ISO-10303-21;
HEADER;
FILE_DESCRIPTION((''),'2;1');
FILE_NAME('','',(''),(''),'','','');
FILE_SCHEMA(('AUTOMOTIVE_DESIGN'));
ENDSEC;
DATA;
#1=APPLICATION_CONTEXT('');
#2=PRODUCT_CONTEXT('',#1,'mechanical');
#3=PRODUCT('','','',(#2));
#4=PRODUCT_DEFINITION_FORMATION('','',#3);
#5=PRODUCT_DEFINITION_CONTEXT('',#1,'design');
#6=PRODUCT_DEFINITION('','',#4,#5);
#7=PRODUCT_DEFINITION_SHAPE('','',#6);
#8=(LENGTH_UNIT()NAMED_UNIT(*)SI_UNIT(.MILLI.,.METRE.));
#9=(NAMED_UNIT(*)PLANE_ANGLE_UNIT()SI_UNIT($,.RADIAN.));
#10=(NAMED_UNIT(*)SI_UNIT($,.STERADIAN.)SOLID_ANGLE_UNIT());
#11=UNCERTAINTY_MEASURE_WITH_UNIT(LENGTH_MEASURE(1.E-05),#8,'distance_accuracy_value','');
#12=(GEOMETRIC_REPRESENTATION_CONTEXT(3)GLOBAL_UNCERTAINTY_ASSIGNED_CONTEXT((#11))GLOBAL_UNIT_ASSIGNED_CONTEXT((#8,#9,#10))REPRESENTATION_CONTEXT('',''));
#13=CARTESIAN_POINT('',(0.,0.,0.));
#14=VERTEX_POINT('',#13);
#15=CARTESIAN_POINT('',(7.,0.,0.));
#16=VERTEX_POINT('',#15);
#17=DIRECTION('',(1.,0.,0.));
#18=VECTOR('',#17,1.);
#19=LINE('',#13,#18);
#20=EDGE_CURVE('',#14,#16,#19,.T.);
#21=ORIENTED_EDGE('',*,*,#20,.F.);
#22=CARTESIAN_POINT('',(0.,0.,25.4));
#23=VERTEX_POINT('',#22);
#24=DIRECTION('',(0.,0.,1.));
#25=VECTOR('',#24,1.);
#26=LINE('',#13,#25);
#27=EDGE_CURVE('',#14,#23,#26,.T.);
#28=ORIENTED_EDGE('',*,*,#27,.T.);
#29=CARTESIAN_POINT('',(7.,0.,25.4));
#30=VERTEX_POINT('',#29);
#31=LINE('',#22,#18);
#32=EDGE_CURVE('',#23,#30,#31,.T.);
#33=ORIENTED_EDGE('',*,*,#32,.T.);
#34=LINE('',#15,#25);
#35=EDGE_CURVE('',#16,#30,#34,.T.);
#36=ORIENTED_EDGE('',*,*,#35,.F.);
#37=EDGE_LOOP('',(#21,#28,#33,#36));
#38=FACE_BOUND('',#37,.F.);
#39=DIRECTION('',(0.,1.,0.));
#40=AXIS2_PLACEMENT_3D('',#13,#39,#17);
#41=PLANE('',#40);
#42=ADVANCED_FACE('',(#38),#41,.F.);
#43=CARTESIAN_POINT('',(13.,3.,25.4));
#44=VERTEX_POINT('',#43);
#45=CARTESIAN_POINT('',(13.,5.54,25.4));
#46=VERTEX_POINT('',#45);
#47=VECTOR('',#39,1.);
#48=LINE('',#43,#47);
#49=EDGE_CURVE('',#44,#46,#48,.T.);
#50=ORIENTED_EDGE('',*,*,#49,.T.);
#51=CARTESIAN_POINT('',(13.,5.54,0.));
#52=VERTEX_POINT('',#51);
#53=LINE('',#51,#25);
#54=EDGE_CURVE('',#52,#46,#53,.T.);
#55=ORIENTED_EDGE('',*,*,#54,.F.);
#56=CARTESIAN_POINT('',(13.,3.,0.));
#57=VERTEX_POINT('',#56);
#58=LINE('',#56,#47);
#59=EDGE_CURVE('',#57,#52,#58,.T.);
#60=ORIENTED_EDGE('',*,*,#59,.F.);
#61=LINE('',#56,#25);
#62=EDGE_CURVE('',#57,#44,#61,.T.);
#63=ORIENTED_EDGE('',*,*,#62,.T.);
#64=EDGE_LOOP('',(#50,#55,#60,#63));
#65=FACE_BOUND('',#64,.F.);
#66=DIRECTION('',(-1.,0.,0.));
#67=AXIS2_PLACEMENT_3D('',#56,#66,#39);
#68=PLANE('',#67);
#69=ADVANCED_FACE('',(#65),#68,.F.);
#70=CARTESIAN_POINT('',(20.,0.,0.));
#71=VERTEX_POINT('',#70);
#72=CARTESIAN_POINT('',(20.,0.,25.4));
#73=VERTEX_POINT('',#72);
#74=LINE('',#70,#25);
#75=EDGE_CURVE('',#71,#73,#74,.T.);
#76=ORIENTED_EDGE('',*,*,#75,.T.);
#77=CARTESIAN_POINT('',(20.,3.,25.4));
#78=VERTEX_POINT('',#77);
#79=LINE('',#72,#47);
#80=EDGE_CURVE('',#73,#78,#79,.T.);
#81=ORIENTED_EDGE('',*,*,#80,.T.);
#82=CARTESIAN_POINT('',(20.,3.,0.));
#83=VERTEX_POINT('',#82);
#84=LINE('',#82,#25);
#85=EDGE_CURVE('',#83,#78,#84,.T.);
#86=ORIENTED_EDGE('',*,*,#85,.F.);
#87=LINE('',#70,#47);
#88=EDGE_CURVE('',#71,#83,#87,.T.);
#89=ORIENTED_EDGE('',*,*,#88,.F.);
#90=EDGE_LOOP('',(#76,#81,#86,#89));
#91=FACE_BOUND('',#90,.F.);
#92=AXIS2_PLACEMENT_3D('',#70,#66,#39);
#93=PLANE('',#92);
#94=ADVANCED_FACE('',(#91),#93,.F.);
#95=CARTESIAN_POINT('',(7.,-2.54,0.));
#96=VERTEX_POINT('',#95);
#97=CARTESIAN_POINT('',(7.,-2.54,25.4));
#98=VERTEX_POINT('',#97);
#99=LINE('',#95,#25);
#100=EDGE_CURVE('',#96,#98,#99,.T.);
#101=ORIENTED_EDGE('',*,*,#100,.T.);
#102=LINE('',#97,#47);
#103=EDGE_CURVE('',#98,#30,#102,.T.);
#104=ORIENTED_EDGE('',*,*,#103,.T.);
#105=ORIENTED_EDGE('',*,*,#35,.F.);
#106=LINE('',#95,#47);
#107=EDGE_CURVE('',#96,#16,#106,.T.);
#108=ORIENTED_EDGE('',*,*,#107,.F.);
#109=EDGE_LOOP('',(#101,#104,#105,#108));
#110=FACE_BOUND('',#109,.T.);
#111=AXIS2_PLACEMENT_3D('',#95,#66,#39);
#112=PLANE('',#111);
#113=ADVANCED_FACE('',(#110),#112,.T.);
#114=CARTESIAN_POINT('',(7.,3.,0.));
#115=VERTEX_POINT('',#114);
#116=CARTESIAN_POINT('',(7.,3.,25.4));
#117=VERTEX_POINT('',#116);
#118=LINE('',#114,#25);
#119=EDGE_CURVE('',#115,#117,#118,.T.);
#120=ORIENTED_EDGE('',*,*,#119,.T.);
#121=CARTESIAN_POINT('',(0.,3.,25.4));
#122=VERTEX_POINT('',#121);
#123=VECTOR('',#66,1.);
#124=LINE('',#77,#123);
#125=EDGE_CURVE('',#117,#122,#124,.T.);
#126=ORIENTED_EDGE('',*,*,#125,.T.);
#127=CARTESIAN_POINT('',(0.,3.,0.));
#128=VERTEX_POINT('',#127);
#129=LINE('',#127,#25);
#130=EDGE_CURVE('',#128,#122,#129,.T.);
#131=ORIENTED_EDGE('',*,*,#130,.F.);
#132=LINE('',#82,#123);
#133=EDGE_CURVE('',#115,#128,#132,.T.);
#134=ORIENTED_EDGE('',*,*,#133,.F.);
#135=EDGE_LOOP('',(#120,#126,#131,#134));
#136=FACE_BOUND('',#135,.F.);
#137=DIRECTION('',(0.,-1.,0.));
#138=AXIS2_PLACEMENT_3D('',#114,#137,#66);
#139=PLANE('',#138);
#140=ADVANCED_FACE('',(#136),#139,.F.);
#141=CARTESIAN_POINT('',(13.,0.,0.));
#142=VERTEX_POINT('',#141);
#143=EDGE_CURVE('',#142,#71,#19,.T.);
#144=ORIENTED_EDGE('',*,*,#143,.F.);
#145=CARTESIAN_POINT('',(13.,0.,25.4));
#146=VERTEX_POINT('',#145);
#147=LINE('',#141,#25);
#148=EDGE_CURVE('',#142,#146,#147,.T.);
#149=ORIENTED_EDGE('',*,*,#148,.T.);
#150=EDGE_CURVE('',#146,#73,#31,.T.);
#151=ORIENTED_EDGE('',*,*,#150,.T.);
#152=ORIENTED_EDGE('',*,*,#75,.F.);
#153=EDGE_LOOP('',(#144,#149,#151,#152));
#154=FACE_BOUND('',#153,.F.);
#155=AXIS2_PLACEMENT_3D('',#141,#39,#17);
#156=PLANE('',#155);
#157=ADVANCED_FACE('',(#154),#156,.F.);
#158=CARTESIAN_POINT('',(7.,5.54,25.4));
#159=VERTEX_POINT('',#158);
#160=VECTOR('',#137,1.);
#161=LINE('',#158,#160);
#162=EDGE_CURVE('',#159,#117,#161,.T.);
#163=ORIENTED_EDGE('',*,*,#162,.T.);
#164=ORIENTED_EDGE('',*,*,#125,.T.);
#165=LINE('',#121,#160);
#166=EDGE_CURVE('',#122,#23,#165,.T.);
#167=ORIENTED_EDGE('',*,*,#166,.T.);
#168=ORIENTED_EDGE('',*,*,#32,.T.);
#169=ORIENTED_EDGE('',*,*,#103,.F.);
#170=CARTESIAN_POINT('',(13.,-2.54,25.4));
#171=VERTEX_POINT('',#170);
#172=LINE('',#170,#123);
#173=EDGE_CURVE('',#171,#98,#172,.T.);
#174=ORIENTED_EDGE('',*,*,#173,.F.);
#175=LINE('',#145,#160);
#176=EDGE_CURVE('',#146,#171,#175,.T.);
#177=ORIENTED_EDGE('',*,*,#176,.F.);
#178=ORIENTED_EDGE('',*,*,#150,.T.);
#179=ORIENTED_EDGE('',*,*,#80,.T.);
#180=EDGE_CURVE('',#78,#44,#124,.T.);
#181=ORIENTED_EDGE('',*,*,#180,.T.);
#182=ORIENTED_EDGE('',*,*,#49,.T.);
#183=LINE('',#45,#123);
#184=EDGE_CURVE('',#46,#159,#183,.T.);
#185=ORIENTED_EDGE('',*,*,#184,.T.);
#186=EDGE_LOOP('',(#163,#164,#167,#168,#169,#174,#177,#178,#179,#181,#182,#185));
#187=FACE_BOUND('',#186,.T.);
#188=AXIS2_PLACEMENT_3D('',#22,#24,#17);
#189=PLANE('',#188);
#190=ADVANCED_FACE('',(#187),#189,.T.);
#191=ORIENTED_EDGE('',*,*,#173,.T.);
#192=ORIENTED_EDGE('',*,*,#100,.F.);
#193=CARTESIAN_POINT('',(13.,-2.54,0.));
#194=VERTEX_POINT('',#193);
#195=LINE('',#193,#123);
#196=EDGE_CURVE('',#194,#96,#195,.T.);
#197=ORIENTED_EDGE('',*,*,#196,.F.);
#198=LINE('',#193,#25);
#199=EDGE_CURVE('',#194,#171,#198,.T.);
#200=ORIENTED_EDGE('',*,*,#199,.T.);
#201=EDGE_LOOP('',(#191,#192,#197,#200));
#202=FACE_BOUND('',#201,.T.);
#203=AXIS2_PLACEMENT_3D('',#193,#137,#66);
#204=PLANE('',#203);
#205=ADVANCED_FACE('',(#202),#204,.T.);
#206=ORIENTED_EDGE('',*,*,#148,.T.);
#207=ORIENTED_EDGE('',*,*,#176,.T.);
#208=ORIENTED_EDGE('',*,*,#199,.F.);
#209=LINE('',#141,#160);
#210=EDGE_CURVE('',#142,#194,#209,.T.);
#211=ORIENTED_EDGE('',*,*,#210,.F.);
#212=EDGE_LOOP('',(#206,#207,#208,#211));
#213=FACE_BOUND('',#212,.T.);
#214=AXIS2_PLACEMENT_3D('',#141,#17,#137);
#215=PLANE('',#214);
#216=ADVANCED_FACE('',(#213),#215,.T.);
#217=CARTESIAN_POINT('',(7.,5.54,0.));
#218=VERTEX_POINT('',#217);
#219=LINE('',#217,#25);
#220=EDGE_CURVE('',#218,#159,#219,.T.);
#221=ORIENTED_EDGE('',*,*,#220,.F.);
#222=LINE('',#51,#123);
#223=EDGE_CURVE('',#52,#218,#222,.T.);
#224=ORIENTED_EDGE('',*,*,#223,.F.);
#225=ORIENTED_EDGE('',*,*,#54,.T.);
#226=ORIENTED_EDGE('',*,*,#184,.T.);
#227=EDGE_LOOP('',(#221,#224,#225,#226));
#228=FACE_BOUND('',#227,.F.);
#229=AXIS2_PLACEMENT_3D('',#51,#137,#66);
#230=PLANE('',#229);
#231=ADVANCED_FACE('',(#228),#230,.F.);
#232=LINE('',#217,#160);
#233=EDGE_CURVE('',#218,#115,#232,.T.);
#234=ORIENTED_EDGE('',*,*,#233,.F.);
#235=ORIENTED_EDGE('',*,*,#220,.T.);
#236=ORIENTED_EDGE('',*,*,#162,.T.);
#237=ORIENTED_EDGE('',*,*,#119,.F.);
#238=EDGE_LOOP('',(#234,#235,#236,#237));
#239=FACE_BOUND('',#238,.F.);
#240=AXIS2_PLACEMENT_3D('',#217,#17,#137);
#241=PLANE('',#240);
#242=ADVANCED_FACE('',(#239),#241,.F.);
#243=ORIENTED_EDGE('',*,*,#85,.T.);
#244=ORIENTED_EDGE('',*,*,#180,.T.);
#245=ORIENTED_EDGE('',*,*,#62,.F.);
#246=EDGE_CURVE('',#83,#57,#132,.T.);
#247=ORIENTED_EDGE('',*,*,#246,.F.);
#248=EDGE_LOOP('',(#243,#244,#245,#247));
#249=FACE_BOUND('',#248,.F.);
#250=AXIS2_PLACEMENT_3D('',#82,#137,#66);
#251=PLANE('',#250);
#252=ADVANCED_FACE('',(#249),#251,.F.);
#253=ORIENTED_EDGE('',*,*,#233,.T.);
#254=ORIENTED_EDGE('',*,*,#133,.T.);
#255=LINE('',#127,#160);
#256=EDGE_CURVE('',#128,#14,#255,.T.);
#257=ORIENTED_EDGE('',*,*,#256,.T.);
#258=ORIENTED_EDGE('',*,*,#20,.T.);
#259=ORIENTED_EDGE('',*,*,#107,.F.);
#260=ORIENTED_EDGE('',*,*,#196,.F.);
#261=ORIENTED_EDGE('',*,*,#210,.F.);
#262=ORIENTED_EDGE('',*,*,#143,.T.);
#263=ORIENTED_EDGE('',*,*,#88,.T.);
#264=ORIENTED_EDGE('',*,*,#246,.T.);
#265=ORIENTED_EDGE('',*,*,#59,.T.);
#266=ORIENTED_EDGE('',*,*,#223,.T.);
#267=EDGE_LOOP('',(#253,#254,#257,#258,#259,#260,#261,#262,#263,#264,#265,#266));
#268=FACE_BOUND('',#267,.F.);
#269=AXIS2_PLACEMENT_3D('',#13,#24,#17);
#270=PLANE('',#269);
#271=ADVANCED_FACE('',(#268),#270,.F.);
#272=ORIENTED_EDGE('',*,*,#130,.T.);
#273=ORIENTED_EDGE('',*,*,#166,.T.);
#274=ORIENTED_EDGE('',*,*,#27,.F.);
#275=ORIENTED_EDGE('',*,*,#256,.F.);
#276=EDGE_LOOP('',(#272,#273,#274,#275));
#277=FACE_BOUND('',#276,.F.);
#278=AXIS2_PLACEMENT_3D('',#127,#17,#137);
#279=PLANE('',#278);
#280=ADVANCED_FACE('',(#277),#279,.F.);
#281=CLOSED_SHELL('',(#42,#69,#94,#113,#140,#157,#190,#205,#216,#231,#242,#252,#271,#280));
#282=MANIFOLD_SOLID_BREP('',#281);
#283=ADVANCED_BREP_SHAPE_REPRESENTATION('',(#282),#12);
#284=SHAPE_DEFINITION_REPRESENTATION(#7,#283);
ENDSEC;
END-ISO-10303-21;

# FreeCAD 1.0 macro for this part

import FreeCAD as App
import Part
import Sketcher

V = App.Vector
Q = App.Units.Quantity

doc = App.newDocument("Part")
params = doc.addObject("Spreadsheet::Sheet", "Params")
for row, (alias, value) in enumerate([
    ("sketch1_height", "0.1 in"),
    ("pad1_length", "1 in"),
], start=1):
    params.set(f"A{row}", alias)
    params.set(f"B{row}", "=" + value)
    params.setAlias(f"B{row}", alias)

body = doc.addObject("PartDesign::Body", "Body")

sketch1 = doc.addObject("Sketcher::SketchObject", "Sketch")
body.addObject(sketch1)
sketch1.AttachmentSupport = (doc.XY_Plane, [""])
sketch1.MapMode = "FlatFace"
sketch1.addGeometry([
    Part.LineSegment(V(0, 3, 0), V(0, 0, 0)),
    Part.LineSegment(V(0, 0, 0), V(7, 0, 0)),
    Part.LineSegment(V(7, 0, 0), V(7, -2.5, 0)),
    Part.LineSegment(V(7, -2.5, 0), V(13, -2.5, 0)),
    Part.LineSegment(V(13, -2.5, 0), V(13, 0, 0)),
    Part.LineSegment(V(13, 0, 0), V(20, 0, 0)),
    Part.LineSegment(V(20, 0, 0), V(20, 3, 0)),
    Part.LineSegment(V(20, 3, 0), V(13, 3, 0)),
    Part.LineSegment(V(13, 3, 0), V(13, 5.5, 0)),
    Part.LineSegment(V(13, 5.5, 0), V(7, 5.5, 0)),
    Part.LineSegment(V(7, 5.5, 0), V(7, 3, 0)),
    Part.LineSegment(V(7, 3, 0), V(0, 3, 0)),
], False)
sketch1.addConstraint([
    Sketcher.Constraint("Coincident", 0, 2, 1, 1),
    Sketcher.Constraint("Coincident", 1, 2, 2, 1),
    Sketcher.Constraint("Coincident", 2, 2, 3, 1),
    Sketcher.Constraint("Coincident", 3, 2, 4, 1),
    Sketcher.Constraint("Coincident", 4, 2, 5, 1),
    Sketcher.Constraint("Coincident", 5, 2, 6, 1),
    Sketcher.Constraint("Coincident", 6, 2, 7, 1),
    Sketcher.Constraint("Coincident", 7, 2, 8, 1),
    Sketcher.Constraint("Coincident", 8, 2, 9, 1),
    Sketcher.Constraint("Coincident", 9, 2, 10, 1),
    Sketcher.Constraint("Coincident", 10, 2, 11, 1),
    Sketcher.Constraint("Coincident", 11, 2, 0, 1),
    Sketcher.Constraint("Vertical", 0),
    Sketcher.Constraint("Horizontal", 1),
    Sketcher.Constraint("Vertical", 2),
    Sketcher.Constraint("Horizontal", 3),
    Sketcher.Constraint("Vertical", 4),
    Sketcher.Constraint("Horizontal", 5),
    Sketcher.Constraint("Vertical", 6),
    Sketcher.Constraint("Horizontal", 7),
    Sketcher.Constraint("Vertical", 8),
    Sketcher.Constraint("Horizontal", 9),
    Sketcher.Constraint("Vertical", 10),
    Sketcher.Constraint("Horizontal", 11),
    Sketcher.Constraint("Coincident", 0, 2, -1, 1),
    Sketcher.Constraint("PointOnObject", 4, 2, -1),
    Sketcher.Constraint("Horizontal", 7, 2, 10, 2),
    Sketcher.Constraint("Vertical", 4, 2, 7, 2),
    Sketcher.Constraint("Vertical", 2, 2, 9, 2),
    Sketcher.Constraint("Equal", 1, 5),
    Sketcher.Constraint("Equal", 4, 8),
    Sketcher.Constraint("DistanceY", 2, 2, 2, 1, Q("0.1 in")),
    Sketcher.Constraint("DistanceX", 1, 1, 1, 2, Q("0.2756 in")),
    Sketcher.Constraint("DistanceY", 0, 2, 0, 1, Q("0.1181 in")),
    Sketcher.Constraint("DistanceX", 3, 1, 3, 2, 6.0),
])
sketch1.setExpression("Constraints[31]", "Params.sketch1_height")
pad1 = doc.addObject("PartDesign::Pad", "Pad")
body.addObject(pad1)
pad1.Profile = sketch1
pad1.setExpression("Length", "Params.pad1_length")

doc.recompute()
